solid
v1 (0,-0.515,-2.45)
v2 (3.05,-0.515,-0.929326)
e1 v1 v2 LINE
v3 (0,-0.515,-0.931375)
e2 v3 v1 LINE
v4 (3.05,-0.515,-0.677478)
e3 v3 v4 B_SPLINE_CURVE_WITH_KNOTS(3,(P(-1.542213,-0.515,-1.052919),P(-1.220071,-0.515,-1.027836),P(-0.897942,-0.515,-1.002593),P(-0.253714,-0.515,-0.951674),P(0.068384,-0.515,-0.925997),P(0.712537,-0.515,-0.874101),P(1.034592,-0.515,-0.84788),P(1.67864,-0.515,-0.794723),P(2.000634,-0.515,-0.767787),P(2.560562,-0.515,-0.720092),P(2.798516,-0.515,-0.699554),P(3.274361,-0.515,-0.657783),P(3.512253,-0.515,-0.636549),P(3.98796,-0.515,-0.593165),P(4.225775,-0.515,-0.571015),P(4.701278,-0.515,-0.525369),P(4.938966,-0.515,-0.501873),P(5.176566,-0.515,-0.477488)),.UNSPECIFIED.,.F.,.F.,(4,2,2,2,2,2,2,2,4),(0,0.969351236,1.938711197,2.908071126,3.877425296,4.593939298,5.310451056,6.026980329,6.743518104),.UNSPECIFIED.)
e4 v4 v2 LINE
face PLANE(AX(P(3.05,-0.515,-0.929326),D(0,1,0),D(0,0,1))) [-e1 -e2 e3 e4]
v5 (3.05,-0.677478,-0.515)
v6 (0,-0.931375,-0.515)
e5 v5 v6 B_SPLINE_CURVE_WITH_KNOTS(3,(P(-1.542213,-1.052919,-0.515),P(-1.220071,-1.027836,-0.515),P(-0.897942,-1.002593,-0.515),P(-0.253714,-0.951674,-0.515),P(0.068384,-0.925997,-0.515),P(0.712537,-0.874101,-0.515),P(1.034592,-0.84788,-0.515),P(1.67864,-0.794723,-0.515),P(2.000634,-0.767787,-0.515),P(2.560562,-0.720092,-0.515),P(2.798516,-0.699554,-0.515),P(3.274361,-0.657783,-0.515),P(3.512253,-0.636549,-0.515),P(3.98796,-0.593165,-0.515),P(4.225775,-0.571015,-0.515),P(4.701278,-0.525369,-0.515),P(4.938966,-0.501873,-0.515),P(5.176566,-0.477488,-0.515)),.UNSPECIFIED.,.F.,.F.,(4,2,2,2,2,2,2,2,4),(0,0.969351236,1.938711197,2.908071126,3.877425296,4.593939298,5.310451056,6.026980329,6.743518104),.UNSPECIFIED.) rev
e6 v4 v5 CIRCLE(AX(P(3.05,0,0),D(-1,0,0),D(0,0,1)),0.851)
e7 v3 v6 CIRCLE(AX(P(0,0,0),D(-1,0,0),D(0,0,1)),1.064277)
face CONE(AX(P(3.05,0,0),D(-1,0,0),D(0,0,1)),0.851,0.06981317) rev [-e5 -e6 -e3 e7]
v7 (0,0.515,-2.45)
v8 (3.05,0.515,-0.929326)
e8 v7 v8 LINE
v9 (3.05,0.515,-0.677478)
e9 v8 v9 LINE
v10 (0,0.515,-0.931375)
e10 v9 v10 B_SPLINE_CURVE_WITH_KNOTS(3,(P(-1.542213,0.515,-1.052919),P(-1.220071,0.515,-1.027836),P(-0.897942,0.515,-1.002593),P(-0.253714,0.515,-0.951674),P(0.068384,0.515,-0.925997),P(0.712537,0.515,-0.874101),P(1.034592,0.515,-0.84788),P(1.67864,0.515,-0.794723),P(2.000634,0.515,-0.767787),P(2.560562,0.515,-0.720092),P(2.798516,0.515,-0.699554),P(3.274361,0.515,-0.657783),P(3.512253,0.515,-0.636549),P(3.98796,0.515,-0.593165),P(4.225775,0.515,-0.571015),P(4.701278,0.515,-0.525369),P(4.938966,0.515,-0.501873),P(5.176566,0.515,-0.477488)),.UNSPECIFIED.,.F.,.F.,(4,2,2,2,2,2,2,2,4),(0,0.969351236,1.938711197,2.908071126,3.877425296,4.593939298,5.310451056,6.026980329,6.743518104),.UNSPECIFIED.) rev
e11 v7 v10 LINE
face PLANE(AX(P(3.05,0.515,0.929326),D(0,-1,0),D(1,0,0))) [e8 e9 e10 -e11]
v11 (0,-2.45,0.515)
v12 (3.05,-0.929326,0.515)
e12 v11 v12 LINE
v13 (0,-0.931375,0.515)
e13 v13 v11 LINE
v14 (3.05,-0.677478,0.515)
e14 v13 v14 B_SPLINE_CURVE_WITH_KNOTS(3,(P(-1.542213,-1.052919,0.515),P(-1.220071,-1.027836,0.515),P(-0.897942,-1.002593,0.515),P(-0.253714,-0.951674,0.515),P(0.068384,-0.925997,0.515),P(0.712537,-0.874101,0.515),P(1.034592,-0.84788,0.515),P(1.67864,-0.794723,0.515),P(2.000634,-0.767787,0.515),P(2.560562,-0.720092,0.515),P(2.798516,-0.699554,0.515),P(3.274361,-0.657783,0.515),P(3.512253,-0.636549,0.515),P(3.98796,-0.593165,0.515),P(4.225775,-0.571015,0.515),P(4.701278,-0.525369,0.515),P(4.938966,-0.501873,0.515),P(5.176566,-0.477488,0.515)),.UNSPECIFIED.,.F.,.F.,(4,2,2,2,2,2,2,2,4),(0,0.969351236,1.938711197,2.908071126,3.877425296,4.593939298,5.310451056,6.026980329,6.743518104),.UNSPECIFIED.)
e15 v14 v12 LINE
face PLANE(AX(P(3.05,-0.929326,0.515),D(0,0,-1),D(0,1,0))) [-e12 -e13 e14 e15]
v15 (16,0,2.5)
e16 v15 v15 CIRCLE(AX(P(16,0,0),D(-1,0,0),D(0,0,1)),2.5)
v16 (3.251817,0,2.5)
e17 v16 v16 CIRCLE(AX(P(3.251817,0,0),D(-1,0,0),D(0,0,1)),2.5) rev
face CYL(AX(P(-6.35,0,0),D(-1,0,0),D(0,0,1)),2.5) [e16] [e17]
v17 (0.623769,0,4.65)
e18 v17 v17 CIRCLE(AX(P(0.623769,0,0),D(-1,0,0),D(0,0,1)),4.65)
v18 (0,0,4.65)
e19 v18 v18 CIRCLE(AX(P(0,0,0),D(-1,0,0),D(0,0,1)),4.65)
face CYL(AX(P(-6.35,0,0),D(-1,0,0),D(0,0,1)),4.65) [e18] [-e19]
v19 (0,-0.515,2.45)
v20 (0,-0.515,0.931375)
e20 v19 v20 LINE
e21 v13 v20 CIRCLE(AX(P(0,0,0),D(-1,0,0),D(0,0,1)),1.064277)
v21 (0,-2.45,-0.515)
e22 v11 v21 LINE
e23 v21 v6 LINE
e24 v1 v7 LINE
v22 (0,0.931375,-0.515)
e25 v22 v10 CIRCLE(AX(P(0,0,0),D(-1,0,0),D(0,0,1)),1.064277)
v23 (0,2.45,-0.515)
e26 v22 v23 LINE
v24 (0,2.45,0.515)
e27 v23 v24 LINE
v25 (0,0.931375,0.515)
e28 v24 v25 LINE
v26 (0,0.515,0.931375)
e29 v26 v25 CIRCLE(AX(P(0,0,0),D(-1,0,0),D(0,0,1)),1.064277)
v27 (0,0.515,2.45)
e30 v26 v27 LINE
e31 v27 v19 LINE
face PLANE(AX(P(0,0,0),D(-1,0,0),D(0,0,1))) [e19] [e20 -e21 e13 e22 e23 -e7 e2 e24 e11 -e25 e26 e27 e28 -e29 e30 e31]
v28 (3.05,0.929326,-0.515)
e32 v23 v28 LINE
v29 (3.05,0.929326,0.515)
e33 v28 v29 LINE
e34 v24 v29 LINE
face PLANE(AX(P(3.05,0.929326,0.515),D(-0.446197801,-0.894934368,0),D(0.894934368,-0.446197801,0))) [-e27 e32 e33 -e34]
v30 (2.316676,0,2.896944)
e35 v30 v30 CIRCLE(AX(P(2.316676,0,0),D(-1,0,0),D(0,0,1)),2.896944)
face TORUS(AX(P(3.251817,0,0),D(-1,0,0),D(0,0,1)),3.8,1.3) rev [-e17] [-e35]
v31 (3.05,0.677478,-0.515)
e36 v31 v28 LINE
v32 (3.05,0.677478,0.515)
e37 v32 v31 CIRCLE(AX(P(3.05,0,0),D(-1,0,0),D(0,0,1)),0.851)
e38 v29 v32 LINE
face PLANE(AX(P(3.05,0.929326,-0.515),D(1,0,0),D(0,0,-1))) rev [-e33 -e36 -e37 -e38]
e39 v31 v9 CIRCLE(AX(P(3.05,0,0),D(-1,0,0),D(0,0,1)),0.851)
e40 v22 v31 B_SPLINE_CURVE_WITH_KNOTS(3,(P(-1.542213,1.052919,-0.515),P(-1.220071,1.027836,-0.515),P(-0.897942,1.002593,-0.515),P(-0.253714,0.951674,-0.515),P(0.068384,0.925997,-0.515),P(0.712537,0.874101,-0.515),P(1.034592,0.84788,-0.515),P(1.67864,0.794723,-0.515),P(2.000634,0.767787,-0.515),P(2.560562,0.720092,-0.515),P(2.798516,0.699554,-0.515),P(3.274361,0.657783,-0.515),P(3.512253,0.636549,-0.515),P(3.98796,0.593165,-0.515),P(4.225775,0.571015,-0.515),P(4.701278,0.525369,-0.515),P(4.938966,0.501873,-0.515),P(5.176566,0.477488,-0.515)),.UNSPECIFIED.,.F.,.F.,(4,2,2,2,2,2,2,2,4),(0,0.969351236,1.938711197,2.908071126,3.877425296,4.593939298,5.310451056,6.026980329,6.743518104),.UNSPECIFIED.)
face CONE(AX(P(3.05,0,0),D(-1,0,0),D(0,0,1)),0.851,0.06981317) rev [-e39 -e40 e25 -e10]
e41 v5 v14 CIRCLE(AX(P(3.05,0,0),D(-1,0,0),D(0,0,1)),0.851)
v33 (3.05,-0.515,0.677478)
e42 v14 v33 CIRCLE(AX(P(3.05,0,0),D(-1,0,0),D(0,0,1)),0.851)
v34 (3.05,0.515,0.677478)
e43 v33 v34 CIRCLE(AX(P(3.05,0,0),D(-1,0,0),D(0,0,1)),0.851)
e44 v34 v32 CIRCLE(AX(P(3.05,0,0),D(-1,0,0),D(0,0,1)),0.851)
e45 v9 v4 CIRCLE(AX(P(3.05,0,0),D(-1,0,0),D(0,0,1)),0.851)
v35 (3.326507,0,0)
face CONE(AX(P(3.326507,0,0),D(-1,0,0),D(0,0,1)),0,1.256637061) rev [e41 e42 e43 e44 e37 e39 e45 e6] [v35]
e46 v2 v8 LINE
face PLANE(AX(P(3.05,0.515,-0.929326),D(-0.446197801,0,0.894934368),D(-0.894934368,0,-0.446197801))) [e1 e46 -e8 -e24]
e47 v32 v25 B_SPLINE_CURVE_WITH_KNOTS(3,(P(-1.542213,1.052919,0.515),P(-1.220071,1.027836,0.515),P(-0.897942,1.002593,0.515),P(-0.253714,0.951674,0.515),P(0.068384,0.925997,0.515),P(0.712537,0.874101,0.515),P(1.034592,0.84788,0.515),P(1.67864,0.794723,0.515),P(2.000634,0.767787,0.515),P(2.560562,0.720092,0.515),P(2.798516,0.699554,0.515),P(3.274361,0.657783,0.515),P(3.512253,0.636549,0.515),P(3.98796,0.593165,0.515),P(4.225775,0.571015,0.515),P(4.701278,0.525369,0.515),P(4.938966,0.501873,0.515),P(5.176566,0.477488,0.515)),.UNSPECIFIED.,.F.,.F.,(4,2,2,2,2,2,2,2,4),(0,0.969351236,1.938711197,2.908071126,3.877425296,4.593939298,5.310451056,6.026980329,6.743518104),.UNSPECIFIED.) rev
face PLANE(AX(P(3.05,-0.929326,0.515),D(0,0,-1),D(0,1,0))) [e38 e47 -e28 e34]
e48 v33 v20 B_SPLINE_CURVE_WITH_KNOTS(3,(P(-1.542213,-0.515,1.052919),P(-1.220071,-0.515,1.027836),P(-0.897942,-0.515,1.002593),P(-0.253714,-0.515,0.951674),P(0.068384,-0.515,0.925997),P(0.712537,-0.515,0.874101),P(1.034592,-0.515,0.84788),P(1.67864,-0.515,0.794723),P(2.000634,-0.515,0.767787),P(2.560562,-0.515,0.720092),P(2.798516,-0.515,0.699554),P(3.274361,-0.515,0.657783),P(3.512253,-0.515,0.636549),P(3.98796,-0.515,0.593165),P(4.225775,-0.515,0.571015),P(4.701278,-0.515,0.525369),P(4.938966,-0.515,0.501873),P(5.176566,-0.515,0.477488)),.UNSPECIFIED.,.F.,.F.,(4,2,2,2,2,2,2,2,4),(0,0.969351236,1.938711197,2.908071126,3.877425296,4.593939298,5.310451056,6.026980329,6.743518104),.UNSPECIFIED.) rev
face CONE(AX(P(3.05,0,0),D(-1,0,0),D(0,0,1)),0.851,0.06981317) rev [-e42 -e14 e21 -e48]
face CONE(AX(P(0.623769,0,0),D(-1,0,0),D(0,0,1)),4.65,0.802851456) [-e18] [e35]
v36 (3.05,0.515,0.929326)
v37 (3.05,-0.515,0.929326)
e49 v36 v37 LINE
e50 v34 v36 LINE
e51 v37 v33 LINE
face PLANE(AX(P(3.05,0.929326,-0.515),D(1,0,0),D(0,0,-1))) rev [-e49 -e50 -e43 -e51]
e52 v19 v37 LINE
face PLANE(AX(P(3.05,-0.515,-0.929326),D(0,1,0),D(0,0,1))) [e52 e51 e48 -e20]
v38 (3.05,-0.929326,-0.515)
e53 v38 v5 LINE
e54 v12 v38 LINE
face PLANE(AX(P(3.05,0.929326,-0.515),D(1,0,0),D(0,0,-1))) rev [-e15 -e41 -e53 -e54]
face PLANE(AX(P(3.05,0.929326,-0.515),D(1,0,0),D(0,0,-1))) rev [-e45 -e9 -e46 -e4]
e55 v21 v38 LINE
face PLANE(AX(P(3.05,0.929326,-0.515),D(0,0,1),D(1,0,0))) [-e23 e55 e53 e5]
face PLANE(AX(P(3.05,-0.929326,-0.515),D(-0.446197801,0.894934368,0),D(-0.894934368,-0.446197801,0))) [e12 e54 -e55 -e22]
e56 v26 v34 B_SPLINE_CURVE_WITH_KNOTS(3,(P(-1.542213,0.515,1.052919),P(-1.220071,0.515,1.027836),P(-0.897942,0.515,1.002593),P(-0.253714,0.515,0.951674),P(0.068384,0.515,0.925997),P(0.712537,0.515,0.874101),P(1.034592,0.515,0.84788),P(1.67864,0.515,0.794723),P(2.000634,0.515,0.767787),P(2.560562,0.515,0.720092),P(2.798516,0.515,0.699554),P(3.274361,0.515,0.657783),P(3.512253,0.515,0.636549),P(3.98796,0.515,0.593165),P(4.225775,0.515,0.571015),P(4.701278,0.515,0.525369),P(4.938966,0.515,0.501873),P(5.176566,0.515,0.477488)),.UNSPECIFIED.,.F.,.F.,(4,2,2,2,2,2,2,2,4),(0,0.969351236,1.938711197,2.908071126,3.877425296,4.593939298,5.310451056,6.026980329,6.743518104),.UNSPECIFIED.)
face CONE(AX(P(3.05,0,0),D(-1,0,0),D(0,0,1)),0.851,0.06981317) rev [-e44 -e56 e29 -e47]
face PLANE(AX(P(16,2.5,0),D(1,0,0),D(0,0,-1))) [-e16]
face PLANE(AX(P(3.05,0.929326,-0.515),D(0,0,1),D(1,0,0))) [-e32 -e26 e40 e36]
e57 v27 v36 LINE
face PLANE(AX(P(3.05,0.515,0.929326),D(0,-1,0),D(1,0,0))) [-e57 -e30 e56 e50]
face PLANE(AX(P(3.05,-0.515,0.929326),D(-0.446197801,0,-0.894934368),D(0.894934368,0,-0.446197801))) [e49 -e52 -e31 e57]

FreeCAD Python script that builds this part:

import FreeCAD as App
import Part
import Sketcher
Q = App.Units.Quantity


def edges_at(feature, points):
    """Names of the edges that pass closest to the given points."""
    edges = feature.Shape.Edges
    near = lambda p: min(range(len(edges)), key=lambda i: edges[i].distToShape(Part.Vertex(*p))[0])
    return sorted({f"Edge{near(p) + 1}" for p in points})

doc = App.newDocument("Part")
body = doc.addObject("PartDesign::Body", "Body")

sketch1 = body.newObject("Sketcher::SketchObject", "Sketch")
sketch1.AttachmentSupport = (doc.getObject("XY_Plane"), [""])
sketch1.MapMode = "FlatFace"
sketch1.addGeometry(Part.LineSegment(App.Vector(0, 4.7, 0), App.Vector(0, 0, 0)), False)
sketch1.addGeometry(Part.LineSegment(App.Vector(0, 0, 0), App.Vector(16, 0, 0)), False)
sketch1.addGeometry(Part.LineSegment(App.Vector(16, 0, 0), App.Vector(16, 2.5, 0)), False)
sketch1.addGeometry(Part.LineSegment(App.Vector(16, 2.5, 0), App.Vector(2.7, 2.5, 0)), False)
sketch1.addGeometry(Part.LineSegment(App.Vector(2.7, 2.5, 0), App.Vector(0.6, 4.7, 0)), False)
sketch1.addGeometry(Part.LineSegment(App.Vector(0.6, 4.7, 0), App.Vector(0, 4.7, 0)), False)
sketch1.addConstraint(Sketcher.Constraint("Coincident", 0, 2, 1, 1))
sketch1.addConstraint(Sketcher.Constraint("Coincident", 1, 2, 2, 1))
sketch1.addConstraint(Sketcher.Constraint("Coincident", 2, 2, 3, 1))
sketch1.addConstraint(Sketcher.Constraint("Coincident", 3, 2, 4, 1))
sketch1.addConstraint(Sketcher.Constraint("Coincident", 4, 2, 5, 1))
sketch1.addConstraint(Sketcher.Constraint("Coincident", 5, 2, 0, 1))
sketch1.addConstraint(Sketcher.Constraint("Vertical", 0))
sketch1.addConstraint(Sketcher.Constraint("Horizontal", 1))
sketch1.addConstraint(Sketcher.Constraint("Vertical", 2))
sketch1.addConstraint(Sketcher.Constraint("Horizontal", 3))
sketch1.addConstraint(Sketcher.Constraint("Horizontal", 5))
sketch1.addConstraint(Sketcher.Constraint("Coincident", 0, 2, -1, 1))
sketch1.addConstraint(Sketcher.Constraint("DistanceX", 1, 1, 1, 2, Q("16 mm")))
sketch1.addConstraint(Sketcher.Constraint("Angle", 4, Q("134 deg")))
sketch1.addConstraint(Sketcher.Constraint("DistanceX", 3, 2, 3, 1, Q("13.3 mm")))
sketch1.addConstraint(Sketcher.Constraint("DistanceY", 2, 1, 2, 2, Q("2.5 mm")))
sketch1.addConstraint(Sketcher.Constraint("DistanceY", 0, 2, 0, 1, Q("4.65 mm")))
revolution = body.newObject("PartDesign::Revolution", "Revolution")
revolution.Profile = sketch1
revolution.ReferenceAxis = (sketch1, ["H_Axis"])
revolution.Angle = 360
doc.recompute()

fillet = body.newObject("PartDesign::Fillet", "Fillet")
fillet.Base = (revolution, edges_at(revolution, [(2.7, 0, -2.5)]))
fillet.Radius = 1.3

sketch2 = body.newObject("Sketcher::SketchObject", "Sketch001")
sketch2.AttachmentSupport = (doc.getObject("YZ_Plane"), [""])
sketch2.MapMode = "FlatFace"
sketch2.addGeometry(Part.LineSegment(App.Vector(2.5, 0.5, 0), App.Vector(2.5, -0.5, 0)), False)
sketch2.addGeometry(Part.LineSegment(App.Vector(2.5, -0.5, 0), App.Vector(-2.5, -0.5, 0)), False)
sketch2.addGeometry(Part.LineSegment(App.Vector(-2.5, -0.5, 0), App.Vector(-2.5, 0.5, 0)), False)
sketch2.addGeometry(Part.LineSegment(App.Vector(-2.5, 0.5, 0), App.Vector(2.5, 0.5, 0)), False)
sketch2.addConstraint(Sketcher.Constraint("Coincident", 0, 2, 1, 1))
sketch2.addConstraint(Sketcher.Constraint("Coincident", 1, 2, 2, 1))
sketch2.addConstraint(Sketcher.Constraint("Coincident", 2, 2, 3, 1))
sketch2.addConstraint(Sketcher.Constraint("Coincident", 3, 2, 0, 1))
sketch2.addConstraint(Sketcher.Constraint("Vertical", 0))
sketch2.addConstraint(Sketcher.Constraint("Horizontal", 1))
sketch2.addConstraint(Sketcher.Constraint("Vertical", 2))
sketch2.addConstraint(Sketcher.Constraint("Horizontal", 3))
sketch2.addConstraint(Sketcher.Constraint("Symmetric", 0, 2, 2, 2, -1, 1))
sketch2.addConstraint(Sketcher.Constraint("DistanceX", 1, 2, 1, 1, Q("4.9 mm")))
sketch2.addConstraint(Sketcher.Constraint("DistanceY", 0, 2, 0, 1, Q("1.03 mm")))

sketch3 = body.newObject("Sketcher::SketchObject", "Sketch002")
sketch3.AttachmentSupport = (doc.getObject("YZ_Plane"), [""])
sketch3.MapMode = "FlatFace"
sketch3.AttachmentOffset = App.Placement(App.Vector(0, 0, 3.05), App.Rotation())
sketch3.addGeometry(Part.LineSegment(App.Vector(0.9, 0.5, 0), App.Vector(0.9, -0.5, 0)), False)
sketch3.addGeometry(Part.LineSegment(App.Vector(0.9, -0.5, 0), App.Vector(-0.9, -0.5, 0)), False)
sketch3.addGeometry(Part.LineSegment(App.Vector(-0.9, -0.5, 0), App.Vector(-0.9, 0.5, 0)), False)
sketch3.addGeometry(Part.LineSegment(App.Vector(-0.9, 0.5, 0), App.Vector(0.9, 0.5, 0)), False)
sketch3.addConstraint(Sketcher.Constraint("Coincident", 0, 2, 1, 1))
sketch3.addConstraint(Sketcher.Constraint("Coincident", 1, 2, 2, 1))
sketch3.addConstraint(Sketcher.Constraint("Coincident", 2, 2, 3, 1))
sketch3.addConstraint(Sketcher.Constraint("Coincident", 3, 2, 0, 1))
sketch3.addConstraint(Sketcher.Constraint("Vertical", 0))
sketch3.addConstraint(Sketcher.Constraint("Horizontal", 1))
sketch3.addConstraint(Sketcher.Constraint("Vertical", 2))
sketch3.addConstraint(Sketcher.Constraint("Horizontal", 3))
sketch3.addConstraint(Sketcher.Constraint("Symmetric", 0, 2, 2, 2, -1, 1))
sketch3.addConstraint(Sketcher.Constraint("DistanceY", 0, 2, 0, 1, Q("1.03 mm")))
sketch3.addConstraint(Sketcher.Constraint("DistanceX", 1, 2, 1, 1, Q("1.858652 mm")))

subtractiveloft = body.newObject("PartDesign::SubtractiveLoft", "SubtractiveLoft")
subtractiveloft.Profile = sketch2
subtractiveloft.Sections = [sketch3]
doc.recompute()

polarpattern = body.newObject("PartDesign::PolarPattern", "PolarPattern")
polarpattern.Originals = [subtractiveloft]
polarpattern.Axis = (doc.getObject("X_Axis"), [""])
polarpattern.Angle = 90
polarpattern.Occurrences = 2
body.Tip = polarpattern

sketch4 = body.newObject("Sketcher::SketchObject", "Sketch003")
sketch4.AttachmentSupport = (doc.getObject("XY_Plane"), [""])
sketch4.MapMode = "FlatFace"
sketch4.addGeometry(Part.LineSegment(App.Vector(0, 1.1, 0), App.Vector(0, 0, 0)), False)
sketch4.addGeometry(Part.LineSegment(App.Vector(0, 0, 0), App.Vector(3.3, 0, 0)), False)
sketch4.addGeometry(Part.LineSegment(App.Vector(3.3, 0, 0), App.Vector(3, 0.9, 0)), False)
sketch4.addGeometry(Part.LineSegment(App.Vector(3, 0.9, 0), App.Vector(0, 1.1, 0)), False)
sketch4.addConstraint(Sketcher.Constraint("Coincident", 0, 2, 1, 1))
sketch4.addConstraint(Sketcher.Constraint("Coincident", 1, 2, 2, 1))
sketch4.addConstraint(Sketcher.Constraint("Coincident", 2, 2, 3, 1))
sketch4.addConstraint(Sketcher.Constraint("Coincident", 3, 2, 0, 1))
sketch4.addConstraint(Sketcher.Constraint("Vertical", 0))
sketch4.addConstraint(Sketcher.Constraint("Horizontal", 1))
sketch4.addConstraint(Sketcher.Constraint("Coincident", 0, 2, -1, 1))
sketch4.addConstraint(Sketcher.Constraint("Angle", 2, Q("108 deg")))
sketch4.addConstraint(Sketcher.Constraint("Angle", 3, Q("176 deg")))
sketch4.addConstraint(Sketcher.Constraint("DistanceX", -1, 1, 2, 2, Q("3.05 mm")))
sketch4.addConstraint(Sketcher.Constraint("DistanceY", -1, 1, 2, 2, Q("0.851 mm")))
groove = body.newObject("PartDesign::Groove", "Groove")
groove.Profile = sketch4
groove.ReferenceAxis = (sketch4, ["H_Axis"])
groove.Angle = 360

doc.recompute()
